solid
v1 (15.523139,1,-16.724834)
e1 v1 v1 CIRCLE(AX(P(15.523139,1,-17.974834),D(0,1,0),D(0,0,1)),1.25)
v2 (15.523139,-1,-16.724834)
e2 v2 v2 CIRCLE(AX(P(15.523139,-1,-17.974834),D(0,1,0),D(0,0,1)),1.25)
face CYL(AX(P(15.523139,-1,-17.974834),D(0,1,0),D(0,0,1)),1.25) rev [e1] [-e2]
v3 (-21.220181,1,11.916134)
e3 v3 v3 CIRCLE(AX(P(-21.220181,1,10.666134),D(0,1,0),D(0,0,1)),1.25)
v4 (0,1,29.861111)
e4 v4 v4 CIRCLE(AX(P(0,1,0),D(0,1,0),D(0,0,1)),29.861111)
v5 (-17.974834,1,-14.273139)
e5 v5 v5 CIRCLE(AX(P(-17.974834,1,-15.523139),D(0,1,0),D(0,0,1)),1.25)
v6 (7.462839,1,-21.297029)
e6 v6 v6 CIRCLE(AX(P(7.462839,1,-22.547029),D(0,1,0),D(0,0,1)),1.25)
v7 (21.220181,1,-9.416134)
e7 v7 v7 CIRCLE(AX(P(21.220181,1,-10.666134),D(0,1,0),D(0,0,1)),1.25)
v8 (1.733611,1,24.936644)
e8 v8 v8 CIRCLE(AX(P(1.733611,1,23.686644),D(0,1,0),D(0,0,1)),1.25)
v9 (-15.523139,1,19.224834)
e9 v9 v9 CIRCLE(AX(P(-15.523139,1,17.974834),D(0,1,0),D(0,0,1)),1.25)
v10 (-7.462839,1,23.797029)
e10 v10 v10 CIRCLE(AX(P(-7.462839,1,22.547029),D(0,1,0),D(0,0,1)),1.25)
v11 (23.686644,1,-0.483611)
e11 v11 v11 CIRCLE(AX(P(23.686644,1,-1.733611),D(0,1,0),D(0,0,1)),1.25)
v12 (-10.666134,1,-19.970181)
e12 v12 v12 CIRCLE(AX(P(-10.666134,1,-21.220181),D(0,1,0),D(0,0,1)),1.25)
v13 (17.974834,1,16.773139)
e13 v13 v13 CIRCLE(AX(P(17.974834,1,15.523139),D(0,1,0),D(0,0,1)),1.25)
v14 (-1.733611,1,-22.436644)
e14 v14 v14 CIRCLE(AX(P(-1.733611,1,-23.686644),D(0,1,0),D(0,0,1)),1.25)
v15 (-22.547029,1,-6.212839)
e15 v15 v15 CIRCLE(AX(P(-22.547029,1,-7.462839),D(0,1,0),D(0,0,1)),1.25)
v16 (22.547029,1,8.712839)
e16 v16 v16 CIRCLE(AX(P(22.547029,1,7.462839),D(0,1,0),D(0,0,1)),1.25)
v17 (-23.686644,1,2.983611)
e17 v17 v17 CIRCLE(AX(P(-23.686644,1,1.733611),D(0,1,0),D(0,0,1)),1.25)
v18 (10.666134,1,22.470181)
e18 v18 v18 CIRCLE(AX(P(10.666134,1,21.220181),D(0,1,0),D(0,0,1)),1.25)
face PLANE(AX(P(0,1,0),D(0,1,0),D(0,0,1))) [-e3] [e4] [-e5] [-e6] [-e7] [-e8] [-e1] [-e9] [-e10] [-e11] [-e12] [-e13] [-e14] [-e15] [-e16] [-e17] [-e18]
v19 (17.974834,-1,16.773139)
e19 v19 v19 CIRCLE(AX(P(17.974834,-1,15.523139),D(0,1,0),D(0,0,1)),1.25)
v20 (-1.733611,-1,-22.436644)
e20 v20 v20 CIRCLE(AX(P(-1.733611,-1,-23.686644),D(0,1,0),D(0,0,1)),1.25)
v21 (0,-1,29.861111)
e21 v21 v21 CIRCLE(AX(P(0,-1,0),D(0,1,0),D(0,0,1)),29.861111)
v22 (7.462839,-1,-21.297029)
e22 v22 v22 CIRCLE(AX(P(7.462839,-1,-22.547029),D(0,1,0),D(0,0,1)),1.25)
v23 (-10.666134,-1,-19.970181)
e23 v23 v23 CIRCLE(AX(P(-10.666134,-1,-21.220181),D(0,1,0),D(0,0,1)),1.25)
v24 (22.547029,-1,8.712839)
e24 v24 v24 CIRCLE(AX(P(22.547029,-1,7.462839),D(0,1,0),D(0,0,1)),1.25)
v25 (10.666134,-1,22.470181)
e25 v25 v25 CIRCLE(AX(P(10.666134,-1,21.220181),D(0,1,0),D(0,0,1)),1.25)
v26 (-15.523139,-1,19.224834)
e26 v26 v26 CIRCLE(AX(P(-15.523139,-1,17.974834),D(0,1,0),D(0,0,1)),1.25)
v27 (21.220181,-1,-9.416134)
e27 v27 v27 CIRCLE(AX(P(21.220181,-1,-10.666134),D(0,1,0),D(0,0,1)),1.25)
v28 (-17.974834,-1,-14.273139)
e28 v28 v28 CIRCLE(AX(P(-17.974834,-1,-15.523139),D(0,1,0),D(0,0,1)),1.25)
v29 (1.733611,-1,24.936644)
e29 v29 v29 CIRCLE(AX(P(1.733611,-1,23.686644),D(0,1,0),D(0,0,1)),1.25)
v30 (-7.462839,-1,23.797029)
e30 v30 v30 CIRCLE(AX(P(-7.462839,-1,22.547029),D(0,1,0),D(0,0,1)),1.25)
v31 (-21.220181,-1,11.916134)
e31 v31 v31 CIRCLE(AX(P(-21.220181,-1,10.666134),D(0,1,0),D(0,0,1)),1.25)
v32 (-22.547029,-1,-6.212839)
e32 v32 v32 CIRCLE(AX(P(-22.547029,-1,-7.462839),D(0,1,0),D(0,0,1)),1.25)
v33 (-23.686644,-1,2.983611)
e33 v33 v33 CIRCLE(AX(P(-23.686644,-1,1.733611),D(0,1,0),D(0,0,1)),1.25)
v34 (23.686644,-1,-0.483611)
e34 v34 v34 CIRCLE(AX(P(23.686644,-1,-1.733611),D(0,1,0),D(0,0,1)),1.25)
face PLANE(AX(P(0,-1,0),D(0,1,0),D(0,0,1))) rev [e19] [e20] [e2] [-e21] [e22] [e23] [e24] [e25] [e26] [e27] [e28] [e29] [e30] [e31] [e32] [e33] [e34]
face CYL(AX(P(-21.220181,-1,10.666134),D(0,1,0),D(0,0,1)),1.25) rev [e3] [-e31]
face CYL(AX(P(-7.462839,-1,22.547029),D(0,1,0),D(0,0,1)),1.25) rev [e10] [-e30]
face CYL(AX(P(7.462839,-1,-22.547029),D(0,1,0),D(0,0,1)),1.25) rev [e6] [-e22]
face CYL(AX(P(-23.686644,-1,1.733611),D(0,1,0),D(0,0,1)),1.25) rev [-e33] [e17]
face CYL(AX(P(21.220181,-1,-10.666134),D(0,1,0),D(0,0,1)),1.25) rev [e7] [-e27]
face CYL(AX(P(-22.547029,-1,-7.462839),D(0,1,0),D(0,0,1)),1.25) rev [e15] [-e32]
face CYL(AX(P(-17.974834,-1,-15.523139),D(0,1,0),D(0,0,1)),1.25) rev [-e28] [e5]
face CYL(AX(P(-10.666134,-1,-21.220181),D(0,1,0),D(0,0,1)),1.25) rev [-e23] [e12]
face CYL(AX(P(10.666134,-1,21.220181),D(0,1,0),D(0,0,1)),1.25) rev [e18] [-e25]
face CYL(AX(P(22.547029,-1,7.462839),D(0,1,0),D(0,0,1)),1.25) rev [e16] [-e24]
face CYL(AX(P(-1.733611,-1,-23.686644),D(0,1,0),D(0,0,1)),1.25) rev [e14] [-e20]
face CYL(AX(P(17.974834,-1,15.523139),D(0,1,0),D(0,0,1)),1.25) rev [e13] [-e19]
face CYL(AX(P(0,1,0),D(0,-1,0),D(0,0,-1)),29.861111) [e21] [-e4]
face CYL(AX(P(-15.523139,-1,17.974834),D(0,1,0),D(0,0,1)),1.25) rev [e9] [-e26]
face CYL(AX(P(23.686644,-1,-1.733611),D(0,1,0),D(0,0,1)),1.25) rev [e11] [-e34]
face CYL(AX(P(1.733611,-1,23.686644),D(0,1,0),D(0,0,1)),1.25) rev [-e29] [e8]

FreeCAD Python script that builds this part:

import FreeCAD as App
import Part
import Sketcher
Q = App.Units.Quantity

doc = App.newDocument("Part")
params = doc.addObject("Spreadsheet::Sheet", "Params")
for row, (alias, value) in enumerate([
    ("pad1_length", "2 mm"),
    ("sketch2_diameter", "2.5 mm"),
], start=1):
    params.set(f"A{row}", alias)
    params.set(f"B{row}", "=" + value)
    params.setAlias(f"B{row}", alias)

body = doc.addObject("PartDesign::Body", "Body")

# Sketch on XZ plane
sketch1 = body.newObject("Sketcher::SketchObject", "Sketch")
sketch1.AttachmentSupport = (doc.getObject("XZ_Plane"), [""])
sketch1.MapMode = "FlatFace"
sketch1.addGeometry(Part.Circle(App.Vector(0, 0, 0), App.Vector(0, 0, 1), 30), False)
sketch1.addConstraint(Sketcher.Constraint("Coincident", 0, 3, -1, 1))
sketch1.addConstraint(Sketcher.Constraint("Diameter", 0, Q("59.722222 mm")))
pad1 = body.newObject("PartDesign::Pad", "Pad")
pad1.Profile = sketch1
pad1.setExpression("Length", "Params.pad1_length")
pad1.Midplane = True

# Sketch on XZ plane
sketch2 = body.newObject("Sketcher::SketchObject", "Sketch001")
sketch2.AttachmentSupport = (doc.getObject("XZ_Plane"), [""])
sketch2.MapMode = "FlatFace"
sketch2.AttachmentOffset = App.Placement(App.Vector(0, 0, -1), App.Rotation())
sketch2.addGeometry(Part.Circle(App.Vector(1.7, 23.7, 0), App.Vector(0, 0, 1), 1.2), False)
sketch2.addGeometry(Part.Circle(App.Vector(-7.5, 22.5, 0), App.Vector(0, 0, 1), 1.2), False)
sketch2.addGeometry(Part.Circle(App.Vector(-15.5, 18, 0), App.Vector(0, 0, 1), 1.2), False)
sketch2.addGeometry(Part.Circle(App.Vector(-21.2, 10.7, 0), App.Vector(0, 0, 1), 1.2), False)
sketch2.addGeometry(Part.Circle(App.Vector(-23.7, 1.7, 0), App.Vector(0, 0, 1), 1.2), False)
sketch2.addGeometry(Part.Circle(App.Vector(-22.5, -7.5, 0), App.Vector(0, 0, 1), 1.2), False)
sketch2.addGeometry(Part.Circle(App.Vector(-18, -15.5, 0), App.Vector(0, 0, 1), 1.2), False)
sketch2.addGeometry(Part.Circle(App.Vector(-10.7, -21.2, 0), App.Vector(0, 0, 1), 1.2), False)
sketch2.addGeometry(Part.Circle(App.Vector(-1.7, -23.7, 0), App.Vector(0, 0, 1), 1.2), False)
sketch2.addGeometry(Part.Circle(App.Vector(10.7, 21.2, 0), App.Vector(0, 0, 1), 1.2), False)
sketch2.addGeometry(Part.Circle(App.Vector(18, 15.5, 0), App.Vector(0, 0, 1), 1.2), False)
sketch2.addGeometry(Part.Circle(App.Vector(22.5, 7.5, 0), App.Vector(0, 0, 1), 1.2), False)
sketch2.addGeometry(Part.Circle(App.Vector(23.7, -1.7, 0), App.Vector(0, 0, 1), 1.2), False)
sketch2.addGeometry(Part.Circle(App.Vector(21.2, -10.7, 0), App.Vector(0, 0, 1), 1.2), False)
sketch2.addGeometry(Part.Circle(App.Vector(15.5, -18, 0), App.Vector(0, 0, 1), 1.2), False)
sketch2.addGeometry(Part.Circle(App.Vector(7.5, -22.5, 0), App.Vector(0, 0, 1), 1.2), False)
sketch2.addConstraint(Sketcher.Constraint("Equal", 0, 1))
sketch2.addConstraint(Sketcher.Constraint("Equal", 1, 2))
sketch2.addConstraint(Sketcher.Constraint("Equal", 2, 3))
sketch2.addConstraint(Sketcher.Constraint("Equal", 3, 4))
sketch2.addConstraint(Sketcher.Constraint("Equal", 4, 5))
sketch2.addConstraint(Sketcher.Constraint("Equal", 5, 6))
sketch2.addConstraint(Sketcher.Constraint("Equal", 6, 7))
sketch2.addConstraint(Sketcher.Constraint("Equal", 7, 8))
sketch2.addConstraint(Sketcher.Constraint("Equal", 8, 9))
sketch2.addConstraint(Sketcher.Constraint("Equal", 9, 10))
sketch2.addConstraint(Sketcher.Constraint("Equal", 10, 11))
sketch2.addConstraint(Sketcher.Constraint("Equal", 11, 12))
sketch2.addConstraint(Sketcher.Constraint("Equal", 12, 13))
sketch2.addConstraint(Sketcher.Constraint("Equal", 13, 14))
sketch2.addConstraint(Sketcher.Constraint("Equal", 14, 15))
sketch2.addConstraint(Sketcher.Constraint("Symmetric", 0, 3, 8, 3, -1, 1))
sketch2.addConstraint(Sketcher.Constraint("Symmetric", 7, 3, 9, 3, -1, 1))
sketch2.addConstraint(Sketcher.Constraint("Symmetric", 6, 3, 10, 3, -1, 1))
sketch2.addConstraint(Sketcher.Constraint("Symmetric", 5, 3, 11, 3, -1, 1))
sketch2.addConstraint(Sketcher.Constraint("Symmetric", 4, 3, 12, 3, -1, 1))
sketch2.addConstraint(Sketcher.Constraint("Symmetric", 3, 3, 13, 3, -1, 1))
sketch2.addConstraint(Sketcher.Constraint("Symmetric", 2, 3, 14, 3, -1, 1))
sketch2.addConstraint(Sketcher.Constraint("Symmetric", 1, 3, 15, 3, -1, 1))
sketch2.addConstraint(Sketcher.Constraint("Diameter", 0, Q("2.5 mm")))
sketch2.addConstraint(Sketcher.Constraint("DistanceX", 2, 3, 1, 3, Q("8.0603 mm")))
sketch2.addConstraint(Sketcher.Constraint("DistanceY", 3, 3, 2, 3, Q("7.308701 mm")))
sketch2.addConstraint(Sketcher.Constraint("DistanceY", 6, 3, 5, 3, Q("8.0603 mm")))
sketch2.addConstraint(Sketcher.Constraint("DistanceX", 6, 3, 7, 3, Q("7.308701 mm")))
sketch2.addConstraint(Sketcher.Constraint("DistanceX", -1, 1, 0, 3, Q("1.733611 mm")))
sketch2.addConstraint(Sketcher.Constraint("DistanceX", 1, 3, -1, 1, Q("7.462839 mm")))
sketch2.addConstraint(Sketcher.Constraint("DistanceY", -1, 1, 1, 3, Q("22.547029 mm")))
sketch2.addConstraint(Sketcher.Constraint("DistanceX", 3, 3, -1, 1, Q("21.220181 mm")))
sketch2.addConstraint(Sketcher.Constraint("DistanceY", -1, 1, 4, 3, Q("1.733611 mm")))
sketch2.addConstraint(Sketcher.Constraint("DistanceX", 5, 3, -1, 1, Q("22.547029 mm")))
sketch2.addConstraint(Sketcher.Constraint("DistanceY", 5, 3, -1, 1, Q("7.462839 mm")))
sketch2.addConstraint(Sketcher.Constraint("DistanceY", 7, 3, -1, 1, Q("21.220181 mm")))
sketch2.addConstraint(Sketcher.Constraint("DistanceY", 2, 3, 0, 3, Q("5.711809 mm")))
sketch2.addConstraint(Sketcher.Constraint("DistanceX", 4, 3, 6, 3, Q("5.711809 mm")))
sketch2.addConstraint(Sketcher.Constraint("DistanceY", -1, 1, 0, 3, Q("23.686644 mm")))
sketch2.addConstraint(Sketcher.Constraint("DistanceX", 4, 3, -1, 1, Q("23.686644 mm")))
sketch2.setExpression("Constraints[23]", "Params.sketch2_diameter")
pocket1 = body.newObject("PartDesign::Pocket", "Pocket")
pocket1.Profile = sketch2
pocket1.Type = "ThroughAll"
pocket1.Midplane = True

doc.recompute()
